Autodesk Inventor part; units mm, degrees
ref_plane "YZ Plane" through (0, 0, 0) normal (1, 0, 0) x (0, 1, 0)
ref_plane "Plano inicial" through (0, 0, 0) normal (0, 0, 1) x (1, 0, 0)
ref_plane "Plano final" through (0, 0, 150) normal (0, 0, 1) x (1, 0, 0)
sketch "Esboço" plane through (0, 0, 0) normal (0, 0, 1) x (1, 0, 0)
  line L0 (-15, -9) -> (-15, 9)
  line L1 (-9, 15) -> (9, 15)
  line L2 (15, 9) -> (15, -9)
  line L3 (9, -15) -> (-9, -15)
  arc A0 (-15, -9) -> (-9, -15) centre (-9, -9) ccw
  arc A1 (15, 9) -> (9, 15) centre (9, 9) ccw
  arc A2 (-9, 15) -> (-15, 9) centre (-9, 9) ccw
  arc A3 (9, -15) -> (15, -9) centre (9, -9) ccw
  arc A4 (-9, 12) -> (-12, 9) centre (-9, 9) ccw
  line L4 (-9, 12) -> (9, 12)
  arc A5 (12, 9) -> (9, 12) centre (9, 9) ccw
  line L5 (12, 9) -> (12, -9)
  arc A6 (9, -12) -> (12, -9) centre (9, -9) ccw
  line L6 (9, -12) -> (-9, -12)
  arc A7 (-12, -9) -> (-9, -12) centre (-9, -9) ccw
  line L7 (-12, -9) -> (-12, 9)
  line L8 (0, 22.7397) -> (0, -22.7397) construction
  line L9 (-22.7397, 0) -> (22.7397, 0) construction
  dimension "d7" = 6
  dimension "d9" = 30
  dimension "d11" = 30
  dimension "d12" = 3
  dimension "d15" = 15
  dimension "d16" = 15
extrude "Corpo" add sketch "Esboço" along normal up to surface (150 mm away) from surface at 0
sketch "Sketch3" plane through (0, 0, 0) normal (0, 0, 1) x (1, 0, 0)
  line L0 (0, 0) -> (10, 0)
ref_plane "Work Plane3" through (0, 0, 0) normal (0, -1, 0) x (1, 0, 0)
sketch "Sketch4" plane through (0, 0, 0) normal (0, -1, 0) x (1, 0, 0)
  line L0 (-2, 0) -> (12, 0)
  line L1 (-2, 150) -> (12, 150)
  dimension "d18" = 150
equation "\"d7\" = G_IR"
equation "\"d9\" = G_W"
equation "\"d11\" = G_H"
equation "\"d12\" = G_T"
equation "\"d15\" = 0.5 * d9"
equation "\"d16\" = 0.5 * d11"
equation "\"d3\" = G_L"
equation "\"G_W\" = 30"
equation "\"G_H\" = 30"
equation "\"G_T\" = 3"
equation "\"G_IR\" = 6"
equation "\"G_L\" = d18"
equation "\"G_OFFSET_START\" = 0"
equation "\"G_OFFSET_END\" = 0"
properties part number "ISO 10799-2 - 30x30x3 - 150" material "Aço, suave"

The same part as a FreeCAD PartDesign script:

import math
import FreeCAD as App
import Part
import Sketcher
from FreeCAD import Vector
Q = App.Units.Quantity

doc = App.newDocument("Part")
body = doc.addObject("PartDesign::Body", "Body")

# Sketch on XY plane
sketch1 = doc.addObject("Sketcher::SketchObject", "Sketch")
body.addObject(sketch1)
sketch1.AttachmentSupport = (doc.XY_Plane, [""])
sketch1.MapMode = "FlatFace"
sketch1.addGeometry(Part.LineSegment(Vector(-15, 9, 0), Vector(-15, -9, 0)), False)
sketch1.addGeometry(Part.ArcOfCircle(Part.Circle(Vector(-9, -9, 0), Vector(0, 0, 1), 6), math.radians(180), math.radians(270)), False)
sketch1.addGeometry(Part.LineSegment(Vector(-9, -15, 0), Vector(9, -15, 0)), False)
sketch1.addGeometry(Part.ArcOfCircle(Part.Circle(Vector(9, -9, 0), Vector(0, 0, 1), 6), math.radians(-90), math.radians(0)), False)
sketch1.addGeometry(Part.LineSegment(Vector(15, -9, 0), Vector(15, 9, 0)), False)
sketch1.addGeometry(Part.ArcOfCircle(Part.Circle(Vector(9, 9, 0), Vector(0, 0, 1), 6), math.radians(0), math.radians(90)), False)
sketch1.addGeometry(Part.LineSegment(Vector(9, 15, 0), Vector(-9, 15, 0)), False)
sketch1.addGeometry(Part.ArcOfCircle(Part.Circle(Vector(-9, 9, 0), Vector(0, 0, 1), 6), math.radians(90), math.radians(180)), False)
sketch1.addGeometry(Part.ArcOfCircle(Part.Circle(Vector(-9, 9, 0), Vector(0, 0, 1), 3), math.radians(90), math.radians(180)), False)
sketch1.addGeometry(Part.LineSegment(Vector(-9, 12, 0), Vector(9, 12, 0)), False)
sketch1.addGeometry(Part.ArcOfCircle(Part.Circle(Vector(9, 9, 0), Vector(0, 0, 1), 3), math.radians(0), math.radians(90)), False)
sketch1.addGeometry(Part.LineSegment(Vector(12, 9, 0), Vector(12, -9, 0)), False)
sketch1.addGeometry(Part.ArcOfCircle(Part.Circle(Vector(9, -9, 0), Vector(0, 0, 1), 3), math.radians(-90), math.radians(0)), False)
sketch1.addGeometry(Part.LineSegment(Vector(9, -12, 0), Vector(-9, -12, 0)), False)
sketch1.addGeometry(Part.ArcOfCircle(Part.Circle(Vector(-9, -9, 0), Vector(0, 0, 1), 3), math.radians(180), math.radians(270)), False)
sketch1.addGeometry(Part.LineSegment(Vector(-12, -9, 0), Vector(-12, 9, 0)), False)
sketch1.addConstraint(Sketcher.Constraint("Tangent", 0, 2, 1, 1))
sketch1.addConstraint(Sketcher.Constraint("Tangent", 1, 2, 2, 1))
sketch1.addConstraint(Sketcher.Constraint("Tangent", 2, 2, 3, 1))
sketch1.addConstraint(Sketcher.Constraint("Tangent", 3, 2, 4, 1))
sketch1.addConstraint(Sketcher.Constraint("Tangent", 4, 2, 5, 1))
sketch1.addConstraint(Sketcher.Constraint("Tangent", 5, 2, 6, 1))
sketch1.addConstraint(Sketcher.Constraint("Tangent", 6, 2, 7, 1))
sketch1.addConstraint(Sketcher.Constraint("Tangent", 7, 2, 0, 1))
sketch1.addConstraint(Sketcher.Constraint("Tangent", 8, 1, 9, 1))
sketch1.addConstraint(Sketcher.Constraint("Tangent", 9, 2, 10, 2))
sketch1.addConstraint(Sketcher.Constraint("Tangent", 10, 1, 11, 1))
sketch1.addConstraint(Sketcher.Constraint("Tangent", 11, 2, 12, 2))
sketch1.addConstraint(Sketcher.Constraint("Tangent", 12, 1, 13, 1))
sketch1.addConstraint(Sketcher.Constraint("Tangent", 13, 2, 14, 2))
sketch1.addConstraint(Sketcher.Constraint("Tangent", 14, 1, 15, 1))
sketch1.addConstraint(Sketcher.Constraint("Tangent", 15, 2, 8, 2))
sketch1.addConstraint(Sketcher.Constraint("Vertical", 0))
sketch1.addConstraint(Sketcher.Constraint("Horizontal", 2))
sketch1.addConstraint(Sketcher.Constraint("Vertical", 4))
sketch1.addConstraint(Sketcher.Constraint("Horizontal", 6))
sketch1.addConstraint(Sketcher.Constraint("Horizontal", 9))
sketch1.addConstraint(Sketcher.Constraint("Vertical", 11))
sketch1.addConstraint(Sketcher.Constraint("Horizontal", 13))
sketch1.addConstraint(Sketcher.Constraint("Vertical", 15))
sketch1.addConstraint(Sketcher.Constraint("Coincident", 8, 3, 7, 3))
sketch1.addConstraint(Sketcher.Constraint("Coincident", 10, 3, 5, 3))
sketch1.addConstraint(Sketcher.Constraint("Coincident", 12, 3, 3, 3))
sketch1.addConstraint(Sketcher.Constraint("Equal", 1, 3))
sketch1.addConstraint(Sketcher.Constraint("Equal", 3, 5))
sketch1.addConstraint(Sketcher.Constraint("Equal", 5, 7))
sketch1.addConstraint(Sketcher.Constraint("Equal", 12, 14))
sketch1.addConstraint(Sketcher.Constraint("Symmetric", 1, 3, 5, 3, -1, 1))
sketch1.addConstraint(Sketcher.Constraint("Equal", 13, 0))
sketch1.addConstraint(Sketcher.Constraint("Radius", 1, Q("6 mm")))
sketch1.addConstraint(Sketcher.Constraint("Radius", 8, Q("3 mm")))
sketch1.addConstraint(Sketcher.Constraint("DistanceX", 0, 2, -1, 1, Q("15 mm")))
pad1 = doc.addObject("PartDesign::Pad", "Pad")
body.addObject(pad1)
pad1.Profile = sketch1
pad1.Length = 150

doc.recompute()
